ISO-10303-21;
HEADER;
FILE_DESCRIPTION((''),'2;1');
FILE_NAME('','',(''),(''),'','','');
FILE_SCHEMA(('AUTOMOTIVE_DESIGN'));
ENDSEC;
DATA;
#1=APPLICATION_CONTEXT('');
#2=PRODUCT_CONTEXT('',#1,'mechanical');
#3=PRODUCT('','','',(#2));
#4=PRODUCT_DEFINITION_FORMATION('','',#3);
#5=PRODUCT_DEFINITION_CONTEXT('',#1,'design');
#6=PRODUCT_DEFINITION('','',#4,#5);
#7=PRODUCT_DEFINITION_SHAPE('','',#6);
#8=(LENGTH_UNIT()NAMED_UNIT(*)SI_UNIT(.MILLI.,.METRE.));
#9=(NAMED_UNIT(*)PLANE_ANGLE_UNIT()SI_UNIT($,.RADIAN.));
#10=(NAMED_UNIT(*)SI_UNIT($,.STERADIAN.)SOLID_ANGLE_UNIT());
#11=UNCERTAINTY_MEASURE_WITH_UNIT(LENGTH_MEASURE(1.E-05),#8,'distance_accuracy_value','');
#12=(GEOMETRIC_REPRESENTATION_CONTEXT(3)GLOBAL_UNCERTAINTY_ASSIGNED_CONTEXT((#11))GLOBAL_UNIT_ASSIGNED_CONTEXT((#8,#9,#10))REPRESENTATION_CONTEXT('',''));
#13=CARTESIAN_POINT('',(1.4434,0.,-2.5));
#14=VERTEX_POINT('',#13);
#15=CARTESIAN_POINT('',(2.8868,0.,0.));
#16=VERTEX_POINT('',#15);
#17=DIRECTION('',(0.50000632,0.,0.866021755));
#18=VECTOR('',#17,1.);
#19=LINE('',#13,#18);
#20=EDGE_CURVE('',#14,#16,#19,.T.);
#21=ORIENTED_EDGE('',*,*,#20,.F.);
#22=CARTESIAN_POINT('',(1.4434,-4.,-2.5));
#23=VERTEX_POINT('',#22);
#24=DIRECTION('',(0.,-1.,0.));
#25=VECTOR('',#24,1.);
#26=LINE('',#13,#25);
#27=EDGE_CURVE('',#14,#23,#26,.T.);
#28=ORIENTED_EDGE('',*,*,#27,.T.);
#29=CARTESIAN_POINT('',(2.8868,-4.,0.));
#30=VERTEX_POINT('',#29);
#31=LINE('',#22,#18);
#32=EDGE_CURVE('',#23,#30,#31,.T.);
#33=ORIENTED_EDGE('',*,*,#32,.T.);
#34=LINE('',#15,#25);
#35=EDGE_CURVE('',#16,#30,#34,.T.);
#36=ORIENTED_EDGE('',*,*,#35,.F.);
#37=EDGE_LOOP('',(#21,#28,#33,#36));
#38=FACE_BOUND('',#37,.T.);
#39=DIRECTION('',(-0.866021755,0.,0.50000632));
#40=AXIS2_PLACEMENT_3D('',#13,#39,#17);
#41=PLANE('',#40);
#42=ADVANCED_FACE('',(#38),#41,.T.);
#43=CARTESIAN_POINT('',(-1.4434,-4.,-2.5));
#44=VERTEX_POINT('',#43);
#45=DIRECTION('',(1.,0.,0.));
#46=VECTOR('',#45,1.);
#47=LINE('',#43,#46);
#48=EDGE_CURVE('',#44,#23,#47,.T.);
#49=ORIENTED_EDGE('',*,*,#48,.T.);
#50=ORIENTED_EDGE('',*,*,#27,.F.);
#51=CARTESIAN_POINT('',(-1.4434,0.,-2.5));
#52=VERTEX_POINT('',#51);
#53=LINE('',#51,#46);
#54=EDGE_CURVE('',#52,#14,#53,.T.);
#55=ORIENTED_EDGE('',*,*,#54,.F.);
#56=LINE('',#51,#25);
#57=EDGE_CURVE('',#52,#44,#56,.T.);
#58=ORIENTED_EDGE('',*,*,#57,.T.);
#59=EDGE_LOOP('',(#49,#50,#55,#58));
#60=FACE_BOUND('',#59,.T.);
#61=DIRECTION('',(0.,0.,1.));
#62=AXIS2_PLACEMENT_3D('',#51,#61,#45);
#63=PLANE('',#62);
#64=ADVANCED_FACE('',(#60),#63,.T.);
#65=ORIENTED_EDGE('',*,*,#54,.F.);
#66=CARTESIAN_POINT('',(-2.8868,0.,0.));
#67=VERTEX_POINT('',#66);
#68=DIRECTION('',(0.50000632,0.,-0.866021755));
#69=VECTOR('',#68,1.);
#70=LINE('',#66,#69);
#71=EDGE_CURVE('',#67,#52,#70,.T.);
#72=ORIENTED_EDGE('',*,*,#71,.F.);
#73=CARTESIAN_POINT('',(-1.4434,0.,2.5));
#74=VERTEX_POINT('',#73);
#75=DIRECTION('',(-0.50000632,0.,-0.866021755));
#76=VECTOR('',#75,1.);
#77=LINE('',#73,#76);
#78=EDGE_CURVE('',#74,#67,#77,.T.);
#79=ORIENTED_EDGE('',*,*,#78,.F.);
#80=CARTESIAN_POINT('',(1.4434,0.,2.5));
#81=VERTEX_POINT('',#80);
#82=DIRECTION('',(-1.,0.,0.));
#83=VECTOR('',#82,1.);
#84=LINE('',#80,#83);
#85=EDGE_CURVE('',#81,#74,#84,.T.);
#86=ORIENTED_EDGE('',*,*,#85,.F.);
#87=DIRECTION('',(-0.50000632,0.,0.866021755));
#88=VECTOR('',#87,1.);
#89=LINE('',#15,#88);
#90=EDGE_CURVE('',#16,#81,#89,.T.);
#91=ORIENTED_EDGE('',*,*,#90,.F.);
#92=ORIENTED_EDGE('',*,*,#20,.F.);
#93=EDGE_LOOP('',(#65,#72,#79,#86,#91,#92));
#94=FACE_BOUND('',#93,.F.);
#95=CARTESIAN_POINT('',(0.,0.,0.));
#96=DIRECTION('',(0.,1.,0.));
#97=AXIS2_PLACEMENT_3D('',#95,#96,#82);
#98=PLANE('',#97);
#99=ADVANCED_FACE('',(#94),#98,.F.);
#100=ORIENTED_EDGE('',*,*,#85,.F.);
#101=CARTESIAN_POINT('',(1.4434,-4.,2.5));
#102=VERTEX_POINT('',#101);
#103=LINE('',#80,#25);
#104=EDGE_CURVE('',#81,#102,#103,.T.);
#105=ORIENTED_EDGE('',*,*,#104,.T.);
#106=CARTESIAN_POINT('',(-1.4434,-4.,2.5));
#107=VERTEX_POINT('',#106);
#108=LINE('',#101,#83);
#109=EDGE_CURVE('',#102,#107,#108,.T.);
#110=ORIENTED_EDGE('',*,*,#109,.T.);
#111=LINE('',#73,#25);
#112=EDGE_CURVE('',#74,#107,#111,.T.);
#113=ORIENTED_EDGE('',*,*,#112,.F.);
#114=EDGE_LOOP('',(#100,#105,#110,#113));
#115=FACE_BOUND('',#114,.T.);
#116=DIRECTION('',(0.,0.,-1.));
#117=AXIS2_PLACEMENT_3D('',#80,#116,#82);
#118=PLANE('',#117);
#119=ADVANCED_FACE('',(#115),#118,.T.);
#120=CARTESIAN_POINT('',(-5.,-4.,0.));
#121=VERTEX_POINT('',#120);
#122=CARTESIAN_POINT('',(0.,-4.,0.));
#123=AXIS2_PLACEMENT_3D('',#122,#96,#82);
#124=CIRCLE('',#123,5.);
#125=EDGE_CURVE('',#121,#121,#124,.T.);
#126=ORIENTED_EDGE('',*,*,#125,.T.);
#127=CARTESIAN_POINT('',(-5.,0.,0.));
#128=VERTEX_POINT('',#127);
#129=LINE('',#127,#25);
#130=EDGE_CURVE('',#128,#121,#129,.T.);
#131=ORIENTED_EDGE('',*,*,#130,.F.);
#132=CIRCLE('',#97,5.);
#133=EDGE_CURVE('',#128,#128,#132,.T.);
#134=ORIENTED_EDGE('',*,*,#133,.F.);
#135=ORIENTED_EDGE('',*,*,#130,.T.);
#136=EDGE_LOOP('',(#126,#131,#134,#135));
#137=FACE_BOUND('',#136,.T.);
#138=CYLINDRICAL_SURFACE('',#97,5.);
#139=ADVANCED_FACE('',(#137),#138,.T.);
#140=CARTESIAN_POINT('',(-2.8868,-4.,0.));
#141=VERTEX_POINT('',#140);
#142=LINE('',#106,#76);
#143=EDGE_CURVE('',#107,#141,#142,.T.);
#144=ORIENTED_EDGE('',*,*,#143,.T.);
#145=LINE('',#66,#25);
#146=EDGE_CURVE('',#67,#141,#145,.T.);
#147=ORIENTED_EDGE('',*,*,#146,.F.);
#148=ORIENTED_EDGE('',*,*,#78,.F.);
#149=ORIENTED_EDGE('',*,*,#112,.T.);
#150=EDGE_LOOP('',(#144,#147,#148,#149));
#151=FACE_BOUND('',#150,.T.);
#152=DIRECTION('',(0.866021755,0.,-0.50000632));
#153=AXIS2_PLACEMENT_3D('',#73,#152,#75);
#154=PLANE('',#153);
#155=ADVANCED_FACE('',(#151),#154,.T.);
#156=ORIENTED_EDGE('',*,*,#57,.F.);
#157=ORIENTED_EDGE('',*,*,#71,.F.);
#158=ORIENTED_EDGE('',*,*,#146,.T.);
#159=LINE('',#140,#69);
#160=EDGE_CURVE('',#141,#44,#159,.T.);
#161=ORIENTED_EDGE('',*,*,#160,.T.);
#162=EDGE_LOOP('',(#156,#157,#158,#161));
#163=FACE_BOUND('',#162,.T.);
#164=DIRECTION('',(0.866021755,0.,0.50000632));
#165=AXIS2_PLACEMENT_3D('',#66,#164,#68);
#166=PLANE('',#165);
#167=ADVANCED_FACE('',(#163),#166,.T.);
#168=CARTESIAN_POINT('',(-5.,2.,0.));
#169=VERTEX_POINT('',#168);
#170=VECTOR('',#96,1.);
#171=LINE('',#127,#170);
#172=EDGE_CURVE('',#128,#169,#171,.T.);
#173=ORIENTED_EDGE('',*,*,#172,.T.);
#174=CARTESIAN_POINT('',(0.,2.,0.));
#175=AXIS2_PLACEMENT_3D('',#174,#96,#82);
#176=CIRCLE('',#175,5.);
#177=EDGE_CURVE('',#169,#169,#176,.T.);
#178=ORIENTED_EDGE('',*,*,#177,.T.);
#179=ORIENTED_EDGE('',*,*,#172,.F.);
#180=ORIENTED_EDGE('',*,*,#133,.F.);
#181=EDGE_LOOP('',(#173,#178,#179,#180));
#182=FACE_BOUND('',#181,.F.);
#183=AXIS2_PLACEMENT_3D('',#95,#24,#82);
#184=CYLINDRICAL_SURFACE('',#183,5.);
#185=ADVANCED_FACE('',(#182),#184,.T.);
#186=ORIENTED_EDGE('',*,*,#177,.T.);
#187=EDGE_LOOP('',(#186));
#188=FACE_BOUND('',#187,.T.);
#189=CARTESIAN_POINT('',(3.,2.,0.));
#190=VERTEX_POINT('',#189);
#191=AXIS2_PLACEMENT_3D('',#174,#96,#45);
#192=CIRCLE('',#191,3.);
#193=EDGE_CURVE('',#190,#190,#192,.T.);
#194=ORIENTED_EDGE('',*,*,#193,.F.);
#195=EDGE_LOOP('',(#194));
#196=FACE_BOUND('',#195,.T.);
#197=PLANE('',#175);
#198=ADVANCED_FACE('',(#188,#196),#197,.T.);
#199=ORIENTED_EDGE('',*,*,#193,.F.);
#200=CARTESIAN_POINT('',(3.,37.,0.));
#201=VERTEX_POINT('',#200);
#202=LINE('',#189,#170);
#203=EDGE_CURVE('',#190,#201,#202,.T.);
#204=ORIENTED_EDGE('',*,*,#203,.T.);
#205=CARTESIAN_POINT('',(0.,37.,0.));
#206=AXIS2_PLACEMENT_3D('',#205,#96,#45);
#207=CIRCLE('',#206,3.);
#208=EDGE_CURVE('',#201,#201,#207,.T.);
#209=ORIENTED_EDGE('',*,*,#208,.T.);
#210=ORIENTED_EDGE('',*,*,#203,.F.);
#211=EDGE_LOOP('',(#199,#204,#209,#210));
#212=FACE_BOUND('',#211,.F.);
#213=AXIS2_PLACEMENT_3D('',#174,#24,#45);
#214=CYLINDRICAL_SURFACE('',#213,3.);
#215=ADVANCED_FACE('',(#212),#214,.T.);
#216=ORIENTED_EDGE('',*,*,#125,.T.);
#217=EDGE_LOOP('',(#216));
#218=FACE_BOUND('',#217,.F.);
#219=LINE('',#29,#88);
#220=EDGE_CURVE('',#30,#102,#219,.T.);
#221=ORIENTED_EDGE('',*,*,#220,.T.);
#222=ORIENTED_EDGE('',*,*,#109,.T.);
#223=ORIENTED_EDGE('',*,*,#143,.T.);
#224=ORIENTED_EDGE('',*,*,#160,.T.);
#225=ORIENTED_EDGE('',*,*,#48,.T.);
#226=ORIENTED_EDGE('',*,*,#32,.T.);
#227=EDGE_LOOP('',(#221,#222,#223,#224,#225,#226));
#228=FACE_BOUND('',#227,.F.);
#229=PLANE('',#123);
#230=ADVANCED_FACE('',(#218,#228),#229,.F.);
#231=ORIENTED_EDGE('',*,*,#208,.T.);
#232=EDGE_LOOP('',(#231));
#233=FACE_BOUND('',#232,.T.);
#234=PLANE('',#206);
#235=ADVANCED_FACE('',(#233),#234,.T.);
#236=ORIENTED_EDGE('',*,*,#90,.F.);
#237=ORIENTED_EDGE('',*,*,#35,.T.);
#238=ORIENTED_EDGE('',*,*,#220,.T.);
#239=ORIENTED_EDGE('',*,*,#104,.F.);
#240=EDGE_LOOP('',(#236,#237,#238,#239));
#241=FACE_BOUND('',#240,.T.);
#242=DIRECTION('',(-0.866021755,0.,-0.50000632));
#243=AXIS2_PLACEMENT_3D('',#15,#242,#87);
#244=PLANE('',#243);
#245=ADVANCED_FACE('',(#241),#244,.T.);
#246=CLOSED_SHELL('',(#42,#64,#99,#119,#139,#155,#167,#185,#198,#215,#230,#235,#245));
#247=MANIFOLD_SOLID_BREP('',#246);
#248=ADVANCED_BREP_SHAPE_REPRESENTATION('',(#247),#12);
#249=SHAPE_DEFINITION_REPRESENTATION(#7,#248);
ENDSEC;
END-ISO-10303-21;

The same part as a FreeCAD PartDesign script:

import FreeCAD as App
import Part
import Sketcher

V = App.Vector
Q = App.Units.Quantity

doc = App.newDocument("Part")
body = doc.addObject("PartDesign::Body", "Body")

# Sketch on XZ plane
sketch1 = doc.addObject("Sketcher::SketchObject", "Sketch")
body.addObject(sketch1)
sketch1.AttachmentSupport = (doc.XZ_Plane, [""])
sketch1.MapMode = "FlatFace"
sketch1.addGeometry(Part.Circle(V(0, 0, 0), V(0, 0, 1), 5), False)
sketch1.addConstraint(Sketcher.Constraint("Coincident", 0, 3, -1, 1))
sketch1.addConstraint(Sketcher.Constraint("Diameter", 0, Q("10 mm")))
pad1 = doc.addObject("PartDesign::Pad", "Pad")
body.addObject(pad1)
pad1.Profile = sketch1
pad1.Length = 2
pad1.Reversed = True

# Sketch on XZ plane
sketch2 = doc.addObject("Sketcher::SketchObject", "Sketch001")
body.addObject(sketch2)
sketch2.AttachmentSupport = (doc.XZ_Plane, [""])
sketch2.MapMode = "FlatFace"
sketch2.addGeometry(Part.Circle(V(0, 0, 0), V(0, 0, 1), 5), False)
sketch2.addGeometry(Part.LineSegment(V(-1.4434, 2.5, 0), V(-2.8868, 0, 0)), False)
sketch2.addGeometry(Part.LineSegment(V(-2.8868, 0, 0), V(-1.4434, -2.5, 0)), False)
sketch2.addGeometry(Part.LineSegment(V(-1.4434, -2.5, 0), V(1.4434, -2.5, 0)), False)
sketch2.addGeometry(Part.LineSegment(V(1.4434, -2.5, 0), V(2.8868, 0, 0)), False)
sketch2.addGeometry(Part.LineSegment(V(2.8868, 0, 0), V(1.4434, 2.5, 0)), False)
sketch2.addGeometry(Part.LineSegment(V(1.4434, 2.5, 0), V(-1.4434, 2.5, 0)), False)
sketch2.addConstraint(Sketcher.Constraint("Coincident", 1, 2, 2, 1))
sketch2.addConstraint(Sketcher.Constraint("Coincident", 2, 2, 3, 1))
sketch2.addConstraint(Sketcher.Constraint("Coincident", 3, 2, 4, 1))
sketch2.addConstraint(Sketcher.Constraint("Coincident", 4, 2, 5, 1))
sketch2.addConstraint(Sketcher.Constraint("Coincident", 5, 2, 6, 1))
sketch2.addConstraint(Sketcher.Constraint("Coincident", 6, 2, 1, 1))
sketch2.addConstraint(Sketcher.Constraint("Horizontal", 3))
sketch2.addConstraint(Sketcher.Constraint("Horizontal", 6))
sketch2.addConstraint(Sketcher.Constraint("Coincident", 0, 3, -1, 1))
sketch2.addConstraint(Sketcher.Constraint("Symmetric", 1, 2, 4, 2, -1, 1))
sketch2.addConstraint(Sketcher.Constraint("Symmetric", 2, 2, 5, 2, -1, 1))
sketch2.addConstraint(Sketcher.Constraint("PointOnObject", 1, 2, -1))
sketch2.addConstraint(Sketcher.Constraint("Parallel", 1, 4))
sketch2.addConstraint(Sketcher.Constraint("Vertical", 3, 2, 5, 2))
sketch2.addConstraint(Sketcher.Constraint("Diameter", 0, Q("10 mm")))
sketch2.addConstraint(Sketcher.Constraint("DistanceY", 3, 2, 5, 2, Q("5 mm")))
sketch2.addConstraint(Sketcher.Constraint("Angle", 1, Q("-120.0004 deg")))
sketch2.addConstraint(Sketcher.Constraint("DistanceX", 3, 1, 3, 2, Q("2.8868 mm")))
pad2 = doc.addObject("PartDesign::Pad", "Pad001")
body.addObject(pad2)
pad2.Profile = sketch2
pad2.Length = 4

# Sketch on XZ plane
sketch3 = doc.addObject("Sketcher::SketchObject", "Sketch002")
body.addObject(sketch3)
sketch3.AttachmentSupport = (doc.XZ_Plane, [""])
sketch3.MapMode = "FlatFace"
sketch3.AttachmentOffset = App.Placement(V(0, 0, -2), App.Rotation())
sketch3.addGeometry(Part.Circle(V(0, 0, 0), V(0, 0, 1), 3), False)
sketch3.addConstraint(Sketcher.Constraint("Coincident", 0, 3, -1, 1))
sketch3.addConstraint(Sketcher.Constraint("Diameter", 0, Q("6 mm")))
pad3 = doc.addObject("PartDesign::Pad", "Pad002")
body.addObject(pad3)
pad3.Profile = sketch3
pad3.Length = 35
pad3.Reversed = True

doc.recompute()
